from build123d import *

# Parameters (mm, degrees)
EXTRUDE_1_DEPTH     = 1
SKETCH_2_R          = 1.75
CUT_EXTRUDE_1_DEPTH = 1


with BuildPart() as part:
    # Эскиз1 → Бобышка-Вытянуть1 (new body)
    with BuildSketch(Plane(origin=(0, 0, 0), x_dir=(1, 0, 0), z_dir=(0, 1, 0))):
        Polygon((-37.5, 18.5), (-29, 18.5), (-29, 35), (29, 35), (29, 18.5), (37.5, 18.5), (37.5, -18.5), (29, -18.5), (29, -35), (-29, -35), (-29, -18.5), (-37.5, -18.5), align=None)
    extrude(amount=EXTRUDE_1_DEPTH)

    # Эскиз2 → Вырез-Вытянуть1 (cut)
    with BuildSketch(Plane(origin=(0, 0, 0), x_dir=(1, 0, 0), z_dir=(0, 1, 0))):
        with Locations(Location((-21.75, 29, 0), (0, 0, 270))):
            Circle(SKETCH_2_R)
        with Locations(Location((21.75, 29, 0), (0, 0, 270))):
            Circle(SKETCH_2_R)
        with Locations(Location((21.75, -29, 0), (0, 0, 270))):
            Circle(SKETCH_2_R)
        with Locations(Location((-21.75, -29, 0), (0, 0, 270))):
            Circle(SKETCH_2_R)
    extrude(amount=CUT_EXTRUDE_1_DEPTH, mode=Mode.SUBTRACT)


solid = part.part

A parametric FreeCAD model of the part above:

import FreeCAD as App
import Part
import Sketcher

V = App.Vector


def add_polygon(sketch, points):
    """Adds a closed chain of lines whose ends are joined by coincident constraints."""
    first, n = sketch.GeometryCount, len(points)
    for a, b in zip(points, points[1:] + points[:1]):
        sketch.addGeometry(Part.LineSegment(App.Vector(*a, 0), App.Vector(*b, 0)), False)
    for i in range(n):
        sketch.addConstraint(Sketcher.Constraint("Coincident", first + i, 2, first + (i + 1) % n, 1))

doc = App.newDocument("Part")
body = doc.addObject("PartDesign::Body", "Body")

# Sketch on XZ plane
sketch1 = doc.addObject("Sketcher::SketchObject", "Sketch")
body.addObject(sketch1)
sketch1.AttachmentSupport = (doc.XZ_Plane, [""])
sketch1.MapMode = "FlatFace"
add_polygon(sketch1, [(-29, -18), (-38, -18), (-38, 18), (-29, 18), (-29, 35), (29, 35), (29, 18), (38, 18), (38, -18), (29, -18), (29, -35), (-29, -35)])  # lines 0-11
sketch1.addConstraint(Sketcher.Constraint("Horizontal", 0))
sketch1.addConstraint(Sketcher.Constraint("Vertical", 1))
sketch1.addConstraint(Sketcher.Constraint("Horizontal", 2))
sketch1.addConstraint(Sketcher.Constraint("Vertical", 3))
sketch1.addConstraint(Sketcher.Constraint("Horizontal", 4))
sketch1.addConstraint(Sketcher.Constraint("Vertical", 5))
sketch1.addConstraint(Sketcher.Constraint("Horizontal", 6))
sketch1.addConstraint(Sketcher.Constraint("Vertical", 7))
sketch1.addConstraint(Sketcher.Constraint("Horizontal", 8))
sketch1.addConstraint(Sketcher.Constraint("Vertical", 9))
sketch1.addConstraint(Sketcher.Constraint("Horizontal", 10))
sketch1.addConstraint(Sketcher.Constraint("Vertical", 11))
sketch1.addConstraint(Sketcher.Constraint("Symmetric", 0, 2, 6, 2, -1, 1))
sketch1.addConstraint(Sketcher.Constraint("Symmetric", 2, 2, 8, 2, -1, 1))
sketch1.addConstraint(Sketcher.Constraint("Symmetric", 4, 2, 10, 2, -1, 1))
sketch1.addConstraint(Sketcher.Constraint("Symmetric", 2, 2, 5, 2, -2))
sketch1.addConstraint(Sketcher.Constraint("DistanceX", 4, 1, 4, 2, 58.0))
sketch1.addConstraint(Sketcher.Constraint("DistanceY", 1, 1, 1, 2, 37.0))
sketch1.addConstraint(Sketcher.Constraint("DistanceX", 0, 2, 0, 1, 8.5))
sketch1.addConstraint(Sketcher.Constraint("DistanceY", 3, 1, 3, 2, 16.5))
pad1 = doc.addObject("PartDesign::Pad", "Pad")
body.addObject(pad1)
pad1.Profile = sketch1
pad1.Length = 1
pad1.Reversed = True

# Sketch on XZ plane
sketch2 = doc.addObject("Sketcher::SketchObject", "Sketch001")
body.addObject(sketch2)
sketch2.AttachmentSupport = (doc.XZ_Plane, [""])
sketch2.MapMode = "FlatFace"
sketch2.addGeometry(Part.Circle(V(-21.8, -29, 0), V(0, 0, 1), 1.8), False)
sketch2.addGeometry(Part.Circle(V(21.8, -29, 0), V(0, 0, 1), 1.8), False)
sketch2.addGeometry(Part.Circle(V(21.8, 29, 0), V(0, 0, 1), 1.8), False)
sketch2.addGeometry(Part.Circle(V(-21.8, 29, 0), V(0, 0, 1), 1.8), False)
sketch2.addConstraint(Sketcher.Constraint("Equal", 0, 1))
sketch2.addConstraint(Sketcher.Constraint("Equal", 1, 2))
sketch2.addConstraint(Sketcher.Constraint("Equal", 2, 3))
sketch2.addConstraint(Sketcher.Constraint("Symmetric", 0, 3, 2, 3, -1, 1))
sketch2.addConstraint(Sketcher.Constraint("Symmetric", 1, 3, 3, 3, -1, 1))
sketch2.addConstraint(Sketcher.Constraint("Symmetric", 0, 3, 1, 3, -2))
sketch2.addConstraint(Sketcher.Constraint("Diameter", 0, 3.5))
sketch2.addConstraint(Sketcher.Constraint("DistanceY", 0, 3, -1, 1, 29.0))
sketch2.addConstraint(Sketcher.Constraint("DistanceX", 0, 3, 1, 3, 43.5))
pocket1 = doc.addObject("PartDesign::Pocket", "Pocket")
body.addObject(pocket1)
pocket1.Profile = sketch2
pocket1.Length = 1

doc.recompute()
